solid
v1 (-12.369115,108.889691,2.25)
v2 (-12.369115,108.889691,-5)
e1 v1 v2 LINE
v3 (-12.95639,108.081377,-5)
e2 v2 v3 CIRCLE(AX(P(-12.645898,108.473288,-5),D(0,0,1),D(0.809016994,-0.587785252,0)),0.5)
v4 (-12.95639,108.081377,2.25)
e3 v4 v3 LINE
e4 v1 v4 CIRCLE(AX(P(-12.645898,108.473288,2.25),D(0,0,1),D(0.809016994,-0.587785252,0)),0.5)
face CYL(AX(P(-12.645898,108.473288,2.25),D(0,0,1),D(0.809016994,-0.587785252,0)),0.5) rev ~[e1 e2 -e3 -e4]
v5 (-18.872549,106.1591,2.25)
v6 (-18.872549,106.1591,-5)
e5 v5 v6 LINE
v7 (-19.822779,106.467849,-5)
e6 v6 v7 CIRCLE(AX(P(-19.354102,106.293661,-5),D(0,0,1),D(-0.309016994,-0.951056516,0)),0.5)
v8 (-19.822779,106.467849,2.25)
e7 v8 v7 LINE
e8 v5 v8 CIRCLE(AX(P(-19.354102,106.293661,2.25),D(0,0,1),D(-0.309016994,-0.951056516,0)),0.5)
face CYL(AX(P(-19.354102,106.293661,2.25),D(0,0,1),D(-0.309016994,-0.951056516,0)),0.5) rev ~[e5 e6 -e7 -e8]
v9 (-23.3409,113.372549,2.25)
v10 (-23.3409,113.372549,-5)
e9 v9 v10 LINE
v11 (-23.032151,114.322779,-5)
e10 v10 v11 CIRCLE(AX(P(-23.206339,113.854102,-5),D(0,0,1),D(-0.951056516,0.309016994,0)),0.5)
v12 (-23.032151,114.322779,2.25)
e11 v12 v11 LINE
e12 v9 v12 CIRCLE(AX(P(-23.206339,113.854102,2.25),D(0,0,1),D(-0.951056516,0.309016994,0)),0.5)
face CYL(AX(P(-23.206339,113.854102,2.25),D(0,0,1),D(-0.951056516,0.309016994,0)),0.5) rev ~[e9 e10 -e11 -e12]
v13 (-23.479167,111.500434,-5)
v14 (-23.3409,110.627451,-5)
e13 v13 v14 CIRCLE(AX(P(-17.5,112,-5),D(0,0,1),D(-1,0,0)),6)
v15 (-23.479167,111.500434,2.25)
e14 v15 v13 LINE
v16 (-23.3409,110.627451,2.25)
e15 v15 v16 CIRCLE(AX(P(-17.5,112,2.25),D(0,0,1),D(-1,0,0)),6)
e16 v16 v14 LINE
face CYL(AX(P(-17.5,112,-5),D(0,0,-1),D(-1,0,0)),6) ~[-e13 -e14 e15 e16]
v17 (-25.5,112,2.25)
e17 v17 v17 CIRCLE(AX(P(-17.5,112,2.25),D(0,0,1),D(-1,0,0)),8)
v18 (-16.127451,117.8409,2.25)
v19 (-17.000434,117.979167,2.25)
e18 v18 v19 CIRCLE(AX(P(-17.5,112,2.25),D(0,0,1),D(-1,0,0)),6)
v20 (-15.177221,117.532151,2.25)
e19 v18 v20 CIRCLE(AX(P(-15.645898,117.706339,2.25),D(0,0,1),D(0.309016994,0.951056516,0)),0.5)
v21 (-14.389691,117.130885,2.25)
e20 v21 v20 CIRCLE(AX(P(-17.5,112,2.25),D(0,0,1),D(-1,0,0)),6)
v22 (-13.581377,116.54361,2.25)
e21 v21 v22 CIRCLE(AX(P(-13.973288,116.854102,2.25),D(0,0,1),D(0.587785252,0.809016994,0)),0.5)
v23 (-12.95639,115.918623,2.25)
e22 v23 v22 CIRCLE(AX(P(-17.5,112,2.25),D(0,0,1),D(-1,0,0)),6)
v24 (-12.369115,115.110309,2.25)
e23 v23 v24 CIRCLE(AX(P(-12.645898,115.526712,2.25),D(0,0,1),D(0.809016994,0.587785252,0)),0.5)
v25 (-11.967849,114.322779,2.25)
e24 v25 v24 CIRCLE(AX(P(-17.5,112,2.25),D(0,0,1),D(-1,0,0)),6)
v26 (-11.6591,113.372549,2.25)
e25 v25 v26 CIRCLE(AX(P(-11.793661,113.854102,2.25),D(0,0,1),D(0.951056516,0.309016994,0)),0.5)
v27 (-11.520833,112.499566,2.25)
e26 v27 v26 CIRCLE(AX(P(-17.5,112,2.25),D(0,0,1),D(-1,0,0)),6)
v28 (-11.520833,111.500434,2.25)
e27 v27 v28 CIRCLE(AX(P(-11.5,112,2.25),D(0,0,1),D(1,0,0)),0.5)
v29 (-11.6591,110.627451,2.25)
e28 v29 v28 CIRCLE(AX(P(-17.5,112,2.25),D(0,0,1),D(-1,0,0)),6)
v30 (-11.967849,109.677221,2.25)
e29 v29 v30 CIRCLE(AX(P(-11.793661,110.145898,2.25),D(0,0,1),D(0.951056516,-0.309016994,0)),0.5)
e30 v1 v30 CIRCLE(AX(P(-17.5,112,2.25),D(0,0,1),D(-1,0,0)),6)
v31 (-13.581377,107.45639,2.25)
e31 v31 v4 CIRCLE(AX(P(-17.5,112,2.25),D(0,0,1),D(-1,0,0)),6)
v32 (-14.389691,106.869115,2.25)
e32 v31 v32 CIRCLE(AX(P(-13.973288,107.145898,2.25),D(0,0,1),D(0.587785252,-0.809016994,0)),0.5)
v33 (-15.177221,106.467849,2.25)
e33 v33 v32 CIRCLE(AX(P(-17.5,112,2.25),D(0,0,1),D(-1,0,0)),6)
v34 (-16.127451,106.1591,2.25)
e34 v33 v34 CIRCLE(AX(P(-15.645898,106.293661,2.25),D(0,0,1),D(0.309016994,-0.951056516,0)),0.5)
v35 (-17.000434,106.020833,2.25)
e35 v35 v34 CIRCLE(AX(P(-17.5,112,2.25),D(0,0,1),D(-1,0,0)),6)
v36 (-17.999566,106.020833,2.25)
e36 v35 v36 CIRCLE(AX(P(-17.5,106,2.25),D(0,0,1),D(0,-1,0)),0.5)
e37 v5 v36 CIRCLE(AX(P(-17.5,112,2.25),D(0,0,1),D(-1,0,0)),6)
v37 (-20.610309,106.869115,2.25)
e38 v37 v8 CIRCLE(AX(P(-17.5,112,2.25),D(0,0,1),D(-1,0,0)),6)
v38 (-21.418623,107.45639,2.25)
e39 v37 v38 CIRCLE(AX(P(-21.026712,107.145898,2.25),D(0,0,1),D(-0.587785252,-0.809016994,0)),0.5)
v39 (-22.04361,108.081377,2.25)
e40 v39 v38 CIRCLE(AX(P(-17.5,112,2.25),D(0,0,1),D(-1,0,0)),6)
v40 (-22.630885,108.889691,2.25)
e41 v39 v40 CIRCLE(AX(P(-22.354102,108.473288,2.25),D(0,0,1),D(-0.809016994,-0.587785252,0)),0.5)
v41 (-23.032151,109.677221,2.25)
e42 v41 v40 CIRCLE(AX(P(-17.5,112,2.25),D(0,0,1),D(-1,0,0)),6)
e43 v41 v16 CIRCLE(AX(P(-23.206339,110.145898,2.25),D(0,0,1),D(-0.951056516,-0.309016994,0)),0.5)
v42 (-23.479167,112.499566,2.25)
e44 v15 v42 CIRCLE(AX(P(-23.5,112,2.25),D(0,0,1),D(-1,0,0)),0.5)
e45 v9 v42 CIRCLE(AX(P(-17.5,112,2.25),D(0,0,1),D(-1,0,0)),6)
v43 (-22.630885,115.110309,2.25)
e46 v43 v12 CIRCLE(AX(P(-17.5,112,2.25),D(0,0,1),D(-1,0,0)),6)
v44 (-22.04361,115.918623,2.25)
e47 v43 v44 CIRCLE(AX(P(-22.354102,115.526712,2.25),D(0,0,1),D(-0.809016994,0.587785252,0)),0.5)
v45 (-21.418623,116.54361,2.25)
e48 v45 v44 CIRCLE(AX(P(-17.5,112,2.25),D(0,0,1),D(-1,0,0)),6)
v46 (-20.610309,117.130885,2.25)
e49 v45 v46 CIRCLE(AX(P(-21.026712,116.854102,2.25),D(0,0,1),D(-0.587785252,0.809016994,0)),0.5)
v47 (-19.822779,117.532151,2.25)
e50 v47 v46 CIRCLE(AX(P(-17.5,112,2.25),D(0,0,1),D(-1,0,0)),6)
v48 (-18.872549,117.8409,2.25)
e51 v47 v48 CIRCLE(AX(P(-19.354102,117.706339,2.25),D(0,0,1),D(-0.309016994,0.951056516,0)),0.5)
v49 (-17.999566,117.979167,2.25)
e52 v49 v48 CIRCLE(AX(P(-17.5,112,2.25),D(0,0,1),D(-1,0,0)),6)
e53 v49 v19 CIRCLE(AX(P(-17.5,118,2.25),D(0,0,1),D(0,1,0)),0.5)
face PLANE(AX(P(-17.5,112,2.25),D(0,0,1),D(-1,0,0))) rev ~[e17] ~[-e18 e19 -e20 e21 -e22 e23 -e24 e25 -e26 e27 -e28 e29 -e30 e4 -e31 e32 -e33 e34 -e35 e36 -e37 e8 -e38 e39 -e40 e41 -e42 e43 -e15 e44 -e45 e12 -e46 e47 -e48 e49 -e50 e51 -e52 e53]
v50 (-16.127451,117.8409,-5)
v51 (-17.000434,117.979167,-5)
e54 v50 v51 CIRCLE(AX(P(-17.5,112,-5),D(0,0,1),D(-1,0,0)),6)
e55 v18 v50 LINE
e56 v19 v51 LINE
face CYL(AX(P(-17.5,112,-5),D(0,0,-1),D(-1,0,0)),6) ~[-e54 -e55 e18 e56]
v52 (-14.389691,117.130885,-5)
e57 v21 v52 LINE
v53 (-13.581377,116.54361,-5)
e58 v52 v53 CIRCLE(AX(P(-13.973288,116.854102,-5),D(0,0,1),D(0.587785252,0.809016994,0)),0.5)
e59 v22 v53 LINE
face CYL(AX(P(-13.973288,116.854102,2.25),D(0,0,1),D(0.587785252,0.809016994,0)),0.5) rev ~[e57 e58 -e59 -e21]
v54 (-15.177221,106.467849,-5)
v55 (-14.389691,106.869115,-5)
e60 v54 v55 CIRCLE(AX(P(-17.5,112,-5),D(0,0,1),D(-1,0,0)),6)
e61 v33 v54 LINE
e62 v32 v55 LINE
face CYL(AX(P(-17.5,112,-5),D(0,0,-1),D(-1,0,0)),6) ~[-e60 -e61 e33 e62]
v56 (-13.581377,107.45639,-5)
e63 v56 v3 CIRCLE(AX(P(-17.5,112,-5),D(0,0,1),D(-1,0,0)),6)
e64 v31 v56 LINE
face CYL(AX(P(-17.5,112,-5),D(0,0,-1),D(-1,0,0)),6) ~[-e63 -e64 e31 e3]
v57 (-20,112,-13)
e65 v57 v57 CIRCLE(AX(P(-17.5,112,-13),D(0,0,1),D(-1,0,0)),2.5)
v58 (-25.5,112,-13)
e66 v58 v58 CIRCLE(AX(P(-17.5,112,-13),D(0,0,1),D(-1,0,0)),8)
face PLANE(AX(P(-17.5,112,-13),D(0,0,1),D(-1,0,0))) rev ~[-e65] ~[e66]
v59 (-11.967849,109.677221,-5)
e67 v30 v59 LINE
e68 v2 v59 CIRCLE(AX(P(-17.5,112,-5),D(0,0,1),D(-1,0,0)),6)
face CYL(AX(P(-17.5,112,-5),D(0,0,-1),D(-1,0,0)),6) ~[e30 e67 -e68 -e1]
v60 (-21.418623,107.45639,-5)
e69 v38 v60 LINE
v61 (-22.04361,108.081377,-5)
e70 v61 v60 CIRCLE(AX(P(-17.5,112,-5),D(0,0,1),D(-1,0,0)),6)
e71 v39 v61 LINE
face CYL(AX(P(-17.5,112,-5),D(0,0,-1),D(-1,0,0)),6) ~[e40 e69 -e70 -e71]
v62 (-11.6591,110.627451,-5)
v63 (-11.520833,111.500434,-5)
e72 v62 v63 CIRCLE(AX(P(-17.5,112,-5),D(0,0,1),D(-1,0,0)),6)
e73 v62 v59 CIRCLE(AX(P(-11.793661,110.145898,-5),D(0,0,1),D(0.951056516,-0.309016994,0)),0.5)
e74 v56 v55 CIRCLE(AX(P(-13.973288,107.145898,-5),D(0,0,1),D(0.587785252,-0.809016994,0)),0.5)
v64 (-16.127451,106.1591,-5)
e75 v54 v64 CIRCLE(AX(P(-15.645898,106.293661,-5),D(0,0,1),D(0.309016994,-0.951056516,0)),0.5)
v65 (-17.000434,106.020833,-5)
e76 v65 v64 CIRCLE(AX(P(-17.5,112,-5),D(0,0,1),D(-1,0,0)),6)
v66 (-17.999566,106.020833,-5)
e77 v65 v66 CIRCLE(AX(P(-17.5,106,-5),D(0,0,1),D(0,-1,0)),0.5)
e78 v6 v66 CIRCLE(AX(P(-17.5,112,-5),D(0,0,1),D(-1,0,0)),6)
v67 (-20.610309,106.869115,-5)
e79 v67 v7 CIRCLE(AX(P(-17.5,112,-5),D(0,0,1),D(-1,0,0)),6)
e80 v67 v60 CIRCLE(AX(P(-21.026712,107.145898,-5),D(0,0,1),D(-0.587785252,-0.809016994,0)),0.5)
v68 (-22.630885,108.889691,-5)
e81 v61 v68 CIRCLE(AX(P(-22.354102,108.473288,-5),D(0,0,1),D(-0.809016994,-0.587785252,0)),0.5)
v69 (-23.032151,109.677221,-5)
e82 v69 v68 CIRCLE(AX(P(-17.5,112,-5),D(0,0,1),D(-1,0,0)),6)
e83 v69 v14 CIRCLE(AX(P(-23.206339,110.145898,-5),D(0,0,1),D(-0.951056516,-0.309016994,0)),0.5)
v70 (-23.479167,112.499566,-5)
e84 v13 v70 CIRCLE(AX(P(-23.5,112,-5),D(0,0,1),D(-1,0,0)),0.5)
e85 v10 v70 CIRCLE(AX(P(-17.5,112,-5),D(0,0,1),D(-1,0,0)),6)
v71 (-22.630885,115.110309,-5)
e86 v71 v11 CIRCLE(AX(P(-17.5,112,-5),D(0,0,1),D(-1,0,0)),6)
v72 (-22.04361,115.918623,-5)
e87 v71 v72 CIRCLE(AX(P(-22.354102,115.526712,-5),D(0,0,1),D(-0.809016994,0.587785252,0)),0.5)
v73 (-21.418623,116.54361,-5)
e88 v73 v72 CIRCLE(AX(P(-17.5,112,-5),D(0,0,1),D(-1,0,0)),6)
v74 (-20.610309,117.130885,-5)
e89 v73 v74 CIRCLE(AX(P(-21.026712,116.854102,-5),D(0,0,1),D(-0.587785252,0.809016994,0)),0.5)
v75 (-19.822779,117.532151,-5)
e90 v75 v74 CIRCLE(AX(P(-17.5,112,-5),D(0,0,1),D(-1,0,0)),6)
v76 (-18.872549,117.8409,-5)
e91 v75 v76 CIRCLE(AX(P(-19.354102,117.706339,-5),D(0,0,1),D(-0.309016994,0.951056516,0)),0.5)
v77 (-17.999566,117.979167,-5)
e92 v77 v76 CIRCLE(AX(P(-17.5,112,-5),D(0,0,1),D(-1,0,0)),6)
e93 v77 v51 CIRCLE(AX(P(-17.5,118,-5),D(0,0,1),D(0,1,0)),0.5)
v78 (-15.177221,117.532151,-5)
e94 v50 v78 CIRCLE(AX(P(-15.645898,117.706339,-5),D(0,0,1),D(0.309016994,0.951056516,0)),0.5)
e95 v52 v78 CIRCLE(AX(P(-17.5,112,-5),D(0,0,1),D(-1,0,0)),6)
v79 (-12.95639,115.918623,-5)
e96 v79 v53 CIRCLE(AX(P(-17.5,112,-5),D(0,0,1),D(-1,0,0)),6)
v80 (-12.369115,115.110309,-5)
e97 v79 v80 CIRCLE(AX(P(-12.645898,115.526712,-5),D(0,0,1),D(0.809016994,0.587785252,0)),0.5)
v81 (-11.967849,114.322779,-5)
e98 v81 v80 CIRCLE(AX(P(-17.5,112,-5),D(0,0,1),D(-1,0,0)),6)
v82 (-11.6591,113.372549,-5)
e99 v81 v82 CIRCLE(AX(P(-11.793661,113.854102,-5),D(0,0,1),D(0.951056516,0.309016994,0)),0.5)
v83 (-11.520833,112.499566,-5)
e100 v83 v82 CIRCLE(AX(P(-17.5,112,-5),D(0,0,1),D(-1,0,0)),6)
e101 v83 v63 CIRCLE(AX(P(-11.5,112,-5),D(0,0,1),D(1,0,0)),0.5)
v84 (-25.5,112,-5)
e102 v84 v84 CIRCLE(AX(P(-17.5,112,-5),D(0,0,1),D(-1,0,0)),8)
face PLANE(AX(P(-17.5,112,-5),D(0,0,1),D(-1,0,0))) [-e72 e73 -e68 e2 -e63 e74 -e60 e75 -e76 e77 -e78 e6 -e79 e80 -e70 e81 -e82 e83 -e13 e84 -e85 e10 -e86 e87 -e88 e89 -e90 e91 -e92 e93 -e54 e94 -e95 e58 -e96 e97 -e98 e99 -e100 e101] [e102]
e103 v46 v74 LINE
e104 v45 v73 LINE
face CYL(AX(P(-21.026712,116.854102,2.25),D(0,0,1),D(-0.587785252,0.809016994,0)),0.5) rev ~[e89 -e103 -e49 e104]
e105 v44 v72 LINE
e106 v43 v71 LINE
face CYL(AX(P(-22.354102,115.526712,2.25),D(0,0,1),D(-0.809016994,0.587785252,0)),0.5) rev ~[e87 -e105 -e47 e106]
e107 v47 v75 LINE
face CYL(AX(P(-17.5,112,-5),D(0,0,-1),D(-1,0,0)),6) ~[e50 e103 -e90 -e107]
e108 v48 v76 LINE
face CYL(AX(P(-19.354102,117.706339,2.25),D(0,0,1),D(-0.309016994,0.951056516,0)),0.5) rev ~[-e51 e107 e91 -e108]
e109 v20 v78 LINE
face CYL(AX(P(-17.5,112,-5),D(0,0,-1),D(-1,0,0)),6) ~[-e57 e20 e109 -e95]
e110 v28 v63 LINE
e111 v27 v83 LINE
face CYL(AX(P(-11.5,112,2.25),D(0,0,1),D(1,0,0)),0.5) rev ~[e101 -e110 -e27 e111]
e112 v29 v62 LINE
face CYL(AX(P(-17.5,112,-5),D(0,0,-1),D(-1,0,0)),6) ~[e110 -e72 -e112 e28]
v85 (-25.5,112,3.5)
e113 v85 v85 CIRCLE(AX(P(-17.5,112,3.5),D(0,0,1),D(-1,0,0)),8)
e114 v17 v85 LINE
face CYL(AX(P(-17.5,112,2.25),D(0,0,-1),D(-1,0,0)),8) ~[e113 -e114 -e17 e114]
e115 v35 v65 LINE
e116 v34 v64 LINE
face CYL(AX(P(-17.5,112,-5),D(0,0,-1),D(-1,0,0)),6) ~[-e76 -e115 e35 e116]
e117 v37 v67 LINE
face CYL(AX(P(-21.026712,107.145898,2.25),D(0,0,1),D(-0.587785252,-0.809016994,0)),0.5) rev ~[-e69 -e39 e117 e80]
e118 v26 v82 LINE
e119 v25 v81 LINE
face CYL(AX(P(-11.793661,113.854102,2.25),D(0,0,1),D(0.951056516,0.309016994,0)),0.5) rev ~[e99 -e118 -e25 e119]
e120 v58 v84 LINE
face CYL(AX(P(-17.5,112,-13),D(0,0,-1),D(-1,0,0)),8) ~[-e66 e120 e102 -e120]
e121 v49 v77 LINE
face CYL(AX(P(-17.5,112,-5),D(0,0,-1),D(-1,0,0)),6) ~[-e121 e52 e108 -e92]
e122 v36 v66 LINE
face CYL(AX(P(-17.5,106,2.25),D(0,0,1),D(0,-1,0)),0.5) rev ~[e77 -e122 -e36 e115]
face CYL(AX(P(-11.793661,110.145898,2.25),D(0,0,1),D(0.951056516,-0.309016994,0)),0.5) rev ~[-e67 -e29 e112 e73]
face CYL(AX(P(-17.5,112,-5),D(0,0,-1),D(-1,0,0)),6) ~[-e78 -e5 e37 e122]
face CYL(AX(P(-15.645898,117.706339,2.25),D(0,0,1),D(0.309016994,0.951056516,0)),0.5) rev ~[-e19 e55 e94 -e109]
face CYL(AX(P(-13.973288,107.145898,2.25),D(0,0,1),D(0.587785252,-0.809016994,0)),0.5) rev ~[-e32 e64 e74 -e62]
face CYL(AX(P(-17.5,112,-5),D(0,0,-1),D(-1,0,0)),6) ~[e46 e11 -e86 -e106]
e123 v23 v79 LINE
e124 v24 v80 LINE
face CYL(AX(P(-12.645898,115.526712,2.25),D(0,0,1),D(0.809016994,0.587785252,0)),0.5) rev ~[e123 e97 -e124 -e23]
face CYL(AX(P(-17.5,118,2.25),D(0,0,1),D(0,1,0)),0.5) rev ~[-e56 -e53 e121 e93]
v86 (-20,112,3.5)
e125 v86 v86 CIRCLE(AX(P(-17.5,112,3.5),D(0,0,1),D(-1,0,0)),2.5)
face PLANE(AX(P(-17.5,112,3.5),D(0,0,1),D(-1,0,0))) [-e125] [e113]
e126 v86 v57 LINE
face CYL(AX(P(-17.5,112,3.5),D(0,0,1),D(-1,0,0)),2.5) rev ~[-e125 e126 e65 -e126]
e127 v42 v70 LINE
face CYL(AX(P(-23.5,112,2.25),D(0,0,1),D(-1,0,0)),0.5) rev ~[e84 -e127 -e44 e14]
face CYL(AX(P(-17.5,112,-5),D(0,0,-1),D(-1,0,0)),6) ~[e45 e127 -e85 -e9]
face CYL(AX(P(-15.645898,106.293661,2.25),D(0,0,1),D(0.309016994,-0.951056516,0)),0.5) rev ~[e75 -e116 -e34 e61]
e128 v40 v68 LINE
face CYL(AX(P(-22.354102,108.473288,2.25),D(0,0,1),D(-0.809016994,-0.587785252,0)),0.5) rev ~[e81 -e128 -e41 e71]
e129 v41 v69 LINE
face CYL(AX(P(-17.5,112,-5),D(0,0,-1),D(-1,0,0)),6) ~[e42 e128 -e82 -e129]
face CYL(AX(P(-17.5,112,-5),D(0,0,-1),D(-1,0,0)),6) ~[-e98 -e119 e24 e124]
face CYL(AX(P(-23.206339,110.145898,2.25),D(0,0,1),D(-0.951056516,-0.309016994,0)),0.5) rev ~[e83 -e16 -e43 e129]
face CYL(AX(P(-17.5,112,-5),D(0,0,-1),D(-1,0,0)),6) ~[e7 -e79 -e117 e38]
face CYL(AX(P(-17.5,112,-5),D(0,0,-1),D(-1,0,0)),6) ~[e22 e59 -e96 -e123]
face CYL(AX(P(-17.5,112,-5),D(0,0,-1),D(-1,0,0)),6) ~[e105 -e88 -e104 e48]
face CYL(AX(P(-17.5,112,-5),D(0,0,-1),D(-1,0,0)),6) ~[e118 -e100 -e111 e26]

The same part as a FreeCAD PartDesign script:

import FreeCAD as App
import Part
import Sketcher

V = App.Vector

doc = App.newDocument("Part")
body = doc.addObject("PartDesign::Body", "Body")

# Sketch on XY plane
sketch1 = body.newObject("Sketcher::SketchObject", "Sketch")
sketch1.AttachmentSupport = (doc.getObject("XY_Plane"), [""])
sketch1.MapMode = "FlatFace"
sketch1.addGeometry(Part.Circle(V(20, -80, 0), V(0, 0, 1), 8), False)
sketch1.addConstraint(Sketcher.Constraint("Diameter", 0, 16.0))
sketch1.addConstraint(Sketcher.Constraint("DistanceX", -1, 1, 0, 3, 20.0))
sketch1.addConstraint(Sketcher.Constraint("DistanceY", 0, 3, -1, 1, 80.0))
pad1 = body.newObject("PartDesign::Pad", "Pad")
pad1.Profile = sketch1
pad1.Length = 8
pad1.Reversed = True

# Sketch on XY plane
sketch2 = body.newObject("Sketcher::SketchObject", "Sketch001")
sketch2.AttachmentSupport = (doc.getObject("XY_Plane"), [""])
sketch2.MapMode = "FlatFace"
sketch2.AttachmentOffset = App.Placement(V(0, 0, -8), App.Rotation())
sketch2.addGeometry(Part.Circle(V(20, -80, 0), V(0, 0, 1), 6), False)
sketch2.addConstraint(Sketcher.Constraint("Diameter", 0, 12.0))
sketch2.addConstraint(Sketcher.Constraint("DistanceX", -1, 1, 0, 3, 20.0))
sketch2.addConstraint(Sketcher.Constraint("DistanceY", 0, 3, -1, 1, 80.0))
pad2 = body.newObject("PartDesign::Pad", "Pad001")
pad2.Profile = sketch2
pad2.Length = 7.25
pad2.Reversed = True

# Sketch on XY plane
sketch3 = body.newObject("Sketcher::SketchObject", "Sketch002")
sketch3.AttachmentSupport = (doc.getObject("XY_Plane"), [""])
sketch3.MapMode = "FlatFace"
sketch3.AttachmentOffset = App.Placement(V(0, 0, -15.25), App.Rotation())
sketch3.addGeometry(Part.Circle(V(26, -80, 0), V(0, 0, 1), 0.5), False)
sketch3.addConstraint(Sketcher.Constraint("Diameter", 0, 1.0))
sketch3.addConstraint(Sketcher.Constraint("DistanceX", -1, 1, 0, 3, 26.0))
sketch3.addConstraint(Sketcher.Constraint("DistanceY", 0, 3, -1, 1, 80.0))
pocket1 = body.newObject("PartDesign::Pocket", "Pocket")
pocket1.Profile = sketch3
pocket1.Length = 7.25
pocket1.Reversed = True
doc.recompute()

datumline = body.newObject("PartDesign::Line", "DatumLine")
datumline.Placement = App.Placement(V(20, -80, 0), App.Rotation(V(0, 0, 1), V(0, 0, -1)))
polarpattern = body.newObject("PartDesign::PolarPattern", "PolarPattern")
polarpattern.Originals = [pocket1]
polarpattern.Axis = (datumline, [""])
polarpattern.Angle = 360
polarpattern.Occurrences = 20
body.Tip = polarpattern

# Sketch on XY plane
sketch4 = body.newObject("Sketcher::SketchObject", "Sketch003")
sketch4.AttachmentSupport = (doc.getObject("XY_Plane"), [""])
sketch4.MapMode = "FlatFace"
sketch4.AttachmentOffset = App.Placement(V(0, 0, -15.25), App.Rotation())
sketch4.addGeometry(Part.Circle(V(20, -80, 0), V(0, 0, 1), 8), False)
sketch4.addConstraint(Sketcher.Constraint("Diameter", 0, 16.0))
sketch4.addConstraint(Sketcher.Constraint("DistanceX", -1, 1, 0, 3, 20.0))
sketch4.addConstraint(Sketcher.Constraint("DistanceY", 0, 3, -1, 1, 80.0))
pad3 = body.newObject("PartDesign::Pad", "Pad002")
pad3.Profile = sketch4
pad3.Length = 1.25
pad3.Reversed = True

# Sketch on XY plane
sketch5 = body.newObject("Sketcher::SketchObject", "Sketch004")
sketch5.AttachmentSupport = (doc.getObject("XY_Plane"), [""])
sketch5.MapMode = "FlatFace"
sketch5.AttachmentOffset = App.Placement(V(0, 0, -16.5), App.Rotation())
sketch5.addGeometry(Part.Circle(V(20, -80, 0), V(0, 0, 1), 2.5), False)
sketch5.addConstraint(Sketcher.Constraint("Diameter", 0, 5.0))
sketch5.addConstraint(Sketcher.Constraint("DistanceX", -1, 1, 0, 3, 20.0))
sketch5.addConstraint(Sketcher.Constraint("DistanceY", 0, 3, -1, 1, 80.0))
pocket2 = body.newObject("PartDesign::Pocket", "Pocket001")
pocket2.Profile = sketch5
pocket2.Length = 16.5
pocket2.Reversed = True
body2 = doc.addObject("PartDesign::Body", "Body001")
doc.recompute()

body.Placement = App.Placement(V(34, 192, -13), App.Rotation(V(0, -1, 0), 180))
boolean = body2.newObject("PartDesign::Boolean", "Boolean")
boolean.Type = "Fuse"
boolean.addObjects([body])
body3 = doc.addObject("PartDesign::Body", "Body002")
doc.recompute()

body2.Placement = App.Placement(V(-31.5, 0, 0), App.Rotation(V(0, 0, 1), 0))
boolean2 = body3.newObject("PartDesign::Boolean", "Boolean001")
boolean2.Type = "Fuse"
boolean2.addObjects([body2])

doc.recompute()
